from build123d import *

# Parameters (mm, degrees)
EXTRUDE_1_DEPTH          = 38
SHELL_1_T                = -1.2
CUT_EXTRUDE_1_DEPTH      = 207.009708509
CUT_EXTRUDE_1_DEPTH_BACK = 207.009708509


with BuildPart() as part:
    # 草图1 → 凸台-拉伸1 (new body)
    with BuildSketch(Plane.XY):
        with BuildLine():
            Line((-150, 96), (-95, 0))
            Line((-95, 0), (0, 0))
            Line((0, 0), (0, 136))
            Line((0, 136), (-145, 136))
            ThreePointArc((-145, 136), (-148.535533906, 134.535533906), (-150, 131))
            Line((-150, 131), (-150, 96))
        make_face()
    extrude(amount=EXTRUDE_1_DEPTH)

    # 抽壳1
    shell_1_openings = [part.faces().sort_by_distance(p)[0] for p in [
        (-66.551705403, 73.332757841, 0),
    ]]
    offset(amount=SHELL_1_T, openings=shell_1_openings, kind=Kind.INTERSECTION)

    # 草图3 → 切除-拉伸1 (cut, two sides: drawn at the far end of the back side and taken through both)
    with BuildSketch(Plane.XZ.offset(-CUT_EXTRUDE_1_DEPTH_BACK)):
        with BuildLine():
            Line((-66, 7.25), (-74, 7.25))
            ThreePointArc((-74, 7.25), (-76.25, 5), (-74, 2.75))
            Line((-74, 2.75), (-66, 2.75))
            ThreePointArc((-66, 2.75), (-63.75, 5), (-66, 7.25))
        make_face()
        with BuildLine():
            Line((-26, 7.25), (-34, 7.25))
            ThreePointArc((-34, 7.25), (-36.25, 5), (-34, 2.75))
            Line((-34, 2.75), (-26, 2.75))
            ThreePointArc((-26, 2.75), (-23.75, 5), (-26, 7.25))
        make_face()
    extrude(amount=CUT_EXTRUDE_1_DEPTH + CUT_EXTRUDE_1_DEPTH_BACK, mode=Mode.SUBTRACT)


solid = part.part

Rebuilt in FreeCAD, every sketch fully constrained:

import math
import FreeCAD as App
import Part
import Sketcher


def faces_at(feature, points):
    """Names of the faces that lie closest to the given points."""
    faces = feature.Shape.Faces
    near = lambda p: min(range(len(faces)), key=lambda i: faces[i].distToShape(Part.Vertex(*p))[0])
    return sorted({f"Face{near(p) + 1}" for p in points})

doc = App.newDocument("Part")
body = doc.addObject("PartDesign::Body", "Body")

# Sketch on XY plane
sketch1 = doc.addObject("Sketcher::SketchObject", "Sketch")
body.addObject(sketch1)
sketch1.AttachmentSupport = (doc.XY_Plane, [""])
sketch1.MapMode = "FlatFace"
sketch1.addGeometry(Part.LineSegment(App.Vector(-150, 96, 0), App.Vector(-95, 0, 0)), False)
sketch1.addGeometry(Part.LineSegment(App.Vector(-95, 0, 0), App.Vector(0, 0, 0)), False)
sketch1.addGeometry(Part.LineSegment(App.Vector(0, 0, 0), App.Vector(0, 136, 0)), False)
sketch1.addGeometry(Part.LineSegment(App.Vector(0, 136, 0), App.Vector(-145, 136, 0)), False)
sketch1.addGeometry(Part.ArcOfCircle(Part.Circle(App.Vector(-145, 131, 0), App.Vector(0, 0, 1), 5), math.radians(90), math.radians(180)), False)
sketch1.addGeometry(Part.LineSegment(App.Vector(-150, 131, 0), App.Vector(-150, 96, 0)), False)
sketch1.addConstraint(Sketcher.Constraint("Coincident", 0, 2, 1, 1))
sketch1.addConstraint(Sketcher.Constraint("Coincident", 1, 2, 2, 1))
sketch1.addConstraint(Sketcher.Constraint("Coincident", 2, 2, 3, 1))
sketch1.addConstraint(Sketcher.Constraint("Tangent", 3, 2, 4, 1))
sketch1.addConstraint(Sketcher.Constraint("Tangent", 4, 2, 5, 1))
sketch1.addConstraint(Sketcher.Constraint("Coincident", 5, 2, 0, 1))
sketch1.addConstraint(Sketcher.Constraint("Horizontal", 1))
sketch1.addConstraint(Sketcher.Constraint("Vertical", 2))
sketch1.addConstraint(Sketcher.Constraint("Horizontal", 3))
sketch1.addConstraint(Sketcher.Constraint("Vertical", 5))
sketch1.addConstraint(Sketcher.Constraint("Coincident", 1, 2, -1, 1))
sketch1.addConstraint(Sketcher.Constraint("Radius", 4, 5.0))
sketch1.addConstraint(Sketcher.Constraint("DistanceX", 1, 1, 1, 2, 95.0))
sketch1.addConstraint(Sketcher.Constraint("DistanceX", 3, 2, 3, 1, 145.0))
sketch1.addConstraint(Sketcher.Constraint("DistanceY", 2, 1, 2, 2, 136.0))
sketch1.addConstraint(Sketcher.Constraint("DistanceY", 5, 2, 5, 1, 35.0))
pad1 = doc.addObject("PartDesign::Pad", "Pad")
body.addObject(pad1)
pad1.Profile = sketch1
pad1.Length = 38
doc.recompute()

thickness = doc.addObject("PartDesign::Thickness", "Thickness")
body.addObject(thickness)
thickness.Base = (pad1, faces_at(pad1, [(-75, 68, 0)]))
thickness.Value = 1.2
thickness.Reversed = True
thickness.Join = "Intersection"

# Sketch on XZ plane
sketch2 = doc.addObject("Sketcher::SketchObject", "Sketch001")
body.addObject(sketch2)
sketch2.AttachmentSupport = (doc.XZ_Plane, [""])
sketch2.MapMode = "FlatFace"
sketch2.addGeometry(Part.LineSegment(App.Vector(-66, 7.25, 0), App.Vector(-74, 7.25, 0)), False)
sketch2.addGeometry(Part.ArcOfCircle(Part.Circle(App.Vector(-74, 5, 0), App.Vector(0, 0, 1), 2.25), math.radians(90), math.radians(270)), False)
sketch2.addGeometry(Part.LineSegment(App.Vector(-74, 2.75, 0), App.Vector(-66, 2.75, 0)), False)
sketch2.addGeometry(Part.ArcOfCircle(Part.Circle(App.Vector(-66, 5, 0), App.Vector(0, 0, 1), 2.25), math.radians(-90), math.radians(90)), False)
sketch2.addGeometry(Part.LineSegment(App.Vector(-26, 7.25, 0), App.Vector(-34, 7.25, 0)), False)
sketch2.addGeometry(Part.ArcOfCircle(Part.Circle(App.Vector(-34, 5, 0), App.Vector(0, 0, 1), 2.25), math.radians(90), math.radians(270)), False)
sketch2.addGeometry(Part.LineSegment(App.Vector(-34, 2.75, 0), App.Vector(-26, 2.75, 0)), False)
sketch2.addGeometry(Part.ArcOfCircle(Part.Circle(App.Vector(-26, 5, 0), App.Vector(0, 0, 1), 2.25), math.radians(-90), math.radians(90)), False)
sketch2.addConstraint(Sketcher.Constraint("Tangent", 0, 2, 1, 1))
sketch2.addConstraint(Sketcher.Constraint("Tangent", 1, 2, 2, 1))
sketch2.addConstraint(Sketcher.Constraint("Tangent", 2, 2, 3, 1))
sketch2.addConstraint(Sketcher.Constraint("Tangent", 3, 2, 0, 1))
sketch2.addConstraint(Sketcher.Constraint("Tangent", 4, 2, 5, 1))
sketch2.addConstraint(Sketcher.Constraint("Tangent", 5, 2, 6, 1))
sketch2.addConstraint(Sketcher.Constraint("Tangent", 6, 2, 7, 1))
sketch2.addConstraint(Sketcher.Constraint("Tangent", 7, 2, 4, 1))
sketch2.addConstraint(Sketcher.Constraint("Horizontal", 0))
sketch2.addConstraint(Sketcher.Constraint("Horizontal", 2))
sketch2.addConstraint(Sketcher.Constraint("Horizontal", 4))
sketch2.addConstraint(Sketcher.Constraint("Horizontal", 6))
sketch2.addConstraint(Sketcher.Constraint("Equal", 3, 5))
sketch2.addConstraint(Sketcher.Constraint("Horizontal", 3, 3, 5, 3))
sketch2.addConstraint(Sketcher.Constraint("Equal", 2, 4))
sketch2.addConstraint(Sketcher.Constraint("DistanceX", 0, 2, 0, 1, 8.0))
sketch2.addConstraint(Sketcher.Constraint("Radius", 1, 2.25))
sketch2.addConstraint(Sketcher.Constraint("DistanceX", 1, 3, -1, 1, 74.0))
sketch2.addConstraint(Sketcher.Constraint("DistanceY", -1, 1, 1, 3, 5.0))
sketch2.addConstraint(Sketcher.Constraint("DistanceX", 5, 3, -1, 1, 34.0))
pocket1 = doc.addObject("PartDesign::Pocket", "Pocket")
body.addObject(pocket1)
pocket1.Profile = sketch2
pocket1.Type = "ThroughAll"
pocket1.Midplane = True

doc.recompute()
